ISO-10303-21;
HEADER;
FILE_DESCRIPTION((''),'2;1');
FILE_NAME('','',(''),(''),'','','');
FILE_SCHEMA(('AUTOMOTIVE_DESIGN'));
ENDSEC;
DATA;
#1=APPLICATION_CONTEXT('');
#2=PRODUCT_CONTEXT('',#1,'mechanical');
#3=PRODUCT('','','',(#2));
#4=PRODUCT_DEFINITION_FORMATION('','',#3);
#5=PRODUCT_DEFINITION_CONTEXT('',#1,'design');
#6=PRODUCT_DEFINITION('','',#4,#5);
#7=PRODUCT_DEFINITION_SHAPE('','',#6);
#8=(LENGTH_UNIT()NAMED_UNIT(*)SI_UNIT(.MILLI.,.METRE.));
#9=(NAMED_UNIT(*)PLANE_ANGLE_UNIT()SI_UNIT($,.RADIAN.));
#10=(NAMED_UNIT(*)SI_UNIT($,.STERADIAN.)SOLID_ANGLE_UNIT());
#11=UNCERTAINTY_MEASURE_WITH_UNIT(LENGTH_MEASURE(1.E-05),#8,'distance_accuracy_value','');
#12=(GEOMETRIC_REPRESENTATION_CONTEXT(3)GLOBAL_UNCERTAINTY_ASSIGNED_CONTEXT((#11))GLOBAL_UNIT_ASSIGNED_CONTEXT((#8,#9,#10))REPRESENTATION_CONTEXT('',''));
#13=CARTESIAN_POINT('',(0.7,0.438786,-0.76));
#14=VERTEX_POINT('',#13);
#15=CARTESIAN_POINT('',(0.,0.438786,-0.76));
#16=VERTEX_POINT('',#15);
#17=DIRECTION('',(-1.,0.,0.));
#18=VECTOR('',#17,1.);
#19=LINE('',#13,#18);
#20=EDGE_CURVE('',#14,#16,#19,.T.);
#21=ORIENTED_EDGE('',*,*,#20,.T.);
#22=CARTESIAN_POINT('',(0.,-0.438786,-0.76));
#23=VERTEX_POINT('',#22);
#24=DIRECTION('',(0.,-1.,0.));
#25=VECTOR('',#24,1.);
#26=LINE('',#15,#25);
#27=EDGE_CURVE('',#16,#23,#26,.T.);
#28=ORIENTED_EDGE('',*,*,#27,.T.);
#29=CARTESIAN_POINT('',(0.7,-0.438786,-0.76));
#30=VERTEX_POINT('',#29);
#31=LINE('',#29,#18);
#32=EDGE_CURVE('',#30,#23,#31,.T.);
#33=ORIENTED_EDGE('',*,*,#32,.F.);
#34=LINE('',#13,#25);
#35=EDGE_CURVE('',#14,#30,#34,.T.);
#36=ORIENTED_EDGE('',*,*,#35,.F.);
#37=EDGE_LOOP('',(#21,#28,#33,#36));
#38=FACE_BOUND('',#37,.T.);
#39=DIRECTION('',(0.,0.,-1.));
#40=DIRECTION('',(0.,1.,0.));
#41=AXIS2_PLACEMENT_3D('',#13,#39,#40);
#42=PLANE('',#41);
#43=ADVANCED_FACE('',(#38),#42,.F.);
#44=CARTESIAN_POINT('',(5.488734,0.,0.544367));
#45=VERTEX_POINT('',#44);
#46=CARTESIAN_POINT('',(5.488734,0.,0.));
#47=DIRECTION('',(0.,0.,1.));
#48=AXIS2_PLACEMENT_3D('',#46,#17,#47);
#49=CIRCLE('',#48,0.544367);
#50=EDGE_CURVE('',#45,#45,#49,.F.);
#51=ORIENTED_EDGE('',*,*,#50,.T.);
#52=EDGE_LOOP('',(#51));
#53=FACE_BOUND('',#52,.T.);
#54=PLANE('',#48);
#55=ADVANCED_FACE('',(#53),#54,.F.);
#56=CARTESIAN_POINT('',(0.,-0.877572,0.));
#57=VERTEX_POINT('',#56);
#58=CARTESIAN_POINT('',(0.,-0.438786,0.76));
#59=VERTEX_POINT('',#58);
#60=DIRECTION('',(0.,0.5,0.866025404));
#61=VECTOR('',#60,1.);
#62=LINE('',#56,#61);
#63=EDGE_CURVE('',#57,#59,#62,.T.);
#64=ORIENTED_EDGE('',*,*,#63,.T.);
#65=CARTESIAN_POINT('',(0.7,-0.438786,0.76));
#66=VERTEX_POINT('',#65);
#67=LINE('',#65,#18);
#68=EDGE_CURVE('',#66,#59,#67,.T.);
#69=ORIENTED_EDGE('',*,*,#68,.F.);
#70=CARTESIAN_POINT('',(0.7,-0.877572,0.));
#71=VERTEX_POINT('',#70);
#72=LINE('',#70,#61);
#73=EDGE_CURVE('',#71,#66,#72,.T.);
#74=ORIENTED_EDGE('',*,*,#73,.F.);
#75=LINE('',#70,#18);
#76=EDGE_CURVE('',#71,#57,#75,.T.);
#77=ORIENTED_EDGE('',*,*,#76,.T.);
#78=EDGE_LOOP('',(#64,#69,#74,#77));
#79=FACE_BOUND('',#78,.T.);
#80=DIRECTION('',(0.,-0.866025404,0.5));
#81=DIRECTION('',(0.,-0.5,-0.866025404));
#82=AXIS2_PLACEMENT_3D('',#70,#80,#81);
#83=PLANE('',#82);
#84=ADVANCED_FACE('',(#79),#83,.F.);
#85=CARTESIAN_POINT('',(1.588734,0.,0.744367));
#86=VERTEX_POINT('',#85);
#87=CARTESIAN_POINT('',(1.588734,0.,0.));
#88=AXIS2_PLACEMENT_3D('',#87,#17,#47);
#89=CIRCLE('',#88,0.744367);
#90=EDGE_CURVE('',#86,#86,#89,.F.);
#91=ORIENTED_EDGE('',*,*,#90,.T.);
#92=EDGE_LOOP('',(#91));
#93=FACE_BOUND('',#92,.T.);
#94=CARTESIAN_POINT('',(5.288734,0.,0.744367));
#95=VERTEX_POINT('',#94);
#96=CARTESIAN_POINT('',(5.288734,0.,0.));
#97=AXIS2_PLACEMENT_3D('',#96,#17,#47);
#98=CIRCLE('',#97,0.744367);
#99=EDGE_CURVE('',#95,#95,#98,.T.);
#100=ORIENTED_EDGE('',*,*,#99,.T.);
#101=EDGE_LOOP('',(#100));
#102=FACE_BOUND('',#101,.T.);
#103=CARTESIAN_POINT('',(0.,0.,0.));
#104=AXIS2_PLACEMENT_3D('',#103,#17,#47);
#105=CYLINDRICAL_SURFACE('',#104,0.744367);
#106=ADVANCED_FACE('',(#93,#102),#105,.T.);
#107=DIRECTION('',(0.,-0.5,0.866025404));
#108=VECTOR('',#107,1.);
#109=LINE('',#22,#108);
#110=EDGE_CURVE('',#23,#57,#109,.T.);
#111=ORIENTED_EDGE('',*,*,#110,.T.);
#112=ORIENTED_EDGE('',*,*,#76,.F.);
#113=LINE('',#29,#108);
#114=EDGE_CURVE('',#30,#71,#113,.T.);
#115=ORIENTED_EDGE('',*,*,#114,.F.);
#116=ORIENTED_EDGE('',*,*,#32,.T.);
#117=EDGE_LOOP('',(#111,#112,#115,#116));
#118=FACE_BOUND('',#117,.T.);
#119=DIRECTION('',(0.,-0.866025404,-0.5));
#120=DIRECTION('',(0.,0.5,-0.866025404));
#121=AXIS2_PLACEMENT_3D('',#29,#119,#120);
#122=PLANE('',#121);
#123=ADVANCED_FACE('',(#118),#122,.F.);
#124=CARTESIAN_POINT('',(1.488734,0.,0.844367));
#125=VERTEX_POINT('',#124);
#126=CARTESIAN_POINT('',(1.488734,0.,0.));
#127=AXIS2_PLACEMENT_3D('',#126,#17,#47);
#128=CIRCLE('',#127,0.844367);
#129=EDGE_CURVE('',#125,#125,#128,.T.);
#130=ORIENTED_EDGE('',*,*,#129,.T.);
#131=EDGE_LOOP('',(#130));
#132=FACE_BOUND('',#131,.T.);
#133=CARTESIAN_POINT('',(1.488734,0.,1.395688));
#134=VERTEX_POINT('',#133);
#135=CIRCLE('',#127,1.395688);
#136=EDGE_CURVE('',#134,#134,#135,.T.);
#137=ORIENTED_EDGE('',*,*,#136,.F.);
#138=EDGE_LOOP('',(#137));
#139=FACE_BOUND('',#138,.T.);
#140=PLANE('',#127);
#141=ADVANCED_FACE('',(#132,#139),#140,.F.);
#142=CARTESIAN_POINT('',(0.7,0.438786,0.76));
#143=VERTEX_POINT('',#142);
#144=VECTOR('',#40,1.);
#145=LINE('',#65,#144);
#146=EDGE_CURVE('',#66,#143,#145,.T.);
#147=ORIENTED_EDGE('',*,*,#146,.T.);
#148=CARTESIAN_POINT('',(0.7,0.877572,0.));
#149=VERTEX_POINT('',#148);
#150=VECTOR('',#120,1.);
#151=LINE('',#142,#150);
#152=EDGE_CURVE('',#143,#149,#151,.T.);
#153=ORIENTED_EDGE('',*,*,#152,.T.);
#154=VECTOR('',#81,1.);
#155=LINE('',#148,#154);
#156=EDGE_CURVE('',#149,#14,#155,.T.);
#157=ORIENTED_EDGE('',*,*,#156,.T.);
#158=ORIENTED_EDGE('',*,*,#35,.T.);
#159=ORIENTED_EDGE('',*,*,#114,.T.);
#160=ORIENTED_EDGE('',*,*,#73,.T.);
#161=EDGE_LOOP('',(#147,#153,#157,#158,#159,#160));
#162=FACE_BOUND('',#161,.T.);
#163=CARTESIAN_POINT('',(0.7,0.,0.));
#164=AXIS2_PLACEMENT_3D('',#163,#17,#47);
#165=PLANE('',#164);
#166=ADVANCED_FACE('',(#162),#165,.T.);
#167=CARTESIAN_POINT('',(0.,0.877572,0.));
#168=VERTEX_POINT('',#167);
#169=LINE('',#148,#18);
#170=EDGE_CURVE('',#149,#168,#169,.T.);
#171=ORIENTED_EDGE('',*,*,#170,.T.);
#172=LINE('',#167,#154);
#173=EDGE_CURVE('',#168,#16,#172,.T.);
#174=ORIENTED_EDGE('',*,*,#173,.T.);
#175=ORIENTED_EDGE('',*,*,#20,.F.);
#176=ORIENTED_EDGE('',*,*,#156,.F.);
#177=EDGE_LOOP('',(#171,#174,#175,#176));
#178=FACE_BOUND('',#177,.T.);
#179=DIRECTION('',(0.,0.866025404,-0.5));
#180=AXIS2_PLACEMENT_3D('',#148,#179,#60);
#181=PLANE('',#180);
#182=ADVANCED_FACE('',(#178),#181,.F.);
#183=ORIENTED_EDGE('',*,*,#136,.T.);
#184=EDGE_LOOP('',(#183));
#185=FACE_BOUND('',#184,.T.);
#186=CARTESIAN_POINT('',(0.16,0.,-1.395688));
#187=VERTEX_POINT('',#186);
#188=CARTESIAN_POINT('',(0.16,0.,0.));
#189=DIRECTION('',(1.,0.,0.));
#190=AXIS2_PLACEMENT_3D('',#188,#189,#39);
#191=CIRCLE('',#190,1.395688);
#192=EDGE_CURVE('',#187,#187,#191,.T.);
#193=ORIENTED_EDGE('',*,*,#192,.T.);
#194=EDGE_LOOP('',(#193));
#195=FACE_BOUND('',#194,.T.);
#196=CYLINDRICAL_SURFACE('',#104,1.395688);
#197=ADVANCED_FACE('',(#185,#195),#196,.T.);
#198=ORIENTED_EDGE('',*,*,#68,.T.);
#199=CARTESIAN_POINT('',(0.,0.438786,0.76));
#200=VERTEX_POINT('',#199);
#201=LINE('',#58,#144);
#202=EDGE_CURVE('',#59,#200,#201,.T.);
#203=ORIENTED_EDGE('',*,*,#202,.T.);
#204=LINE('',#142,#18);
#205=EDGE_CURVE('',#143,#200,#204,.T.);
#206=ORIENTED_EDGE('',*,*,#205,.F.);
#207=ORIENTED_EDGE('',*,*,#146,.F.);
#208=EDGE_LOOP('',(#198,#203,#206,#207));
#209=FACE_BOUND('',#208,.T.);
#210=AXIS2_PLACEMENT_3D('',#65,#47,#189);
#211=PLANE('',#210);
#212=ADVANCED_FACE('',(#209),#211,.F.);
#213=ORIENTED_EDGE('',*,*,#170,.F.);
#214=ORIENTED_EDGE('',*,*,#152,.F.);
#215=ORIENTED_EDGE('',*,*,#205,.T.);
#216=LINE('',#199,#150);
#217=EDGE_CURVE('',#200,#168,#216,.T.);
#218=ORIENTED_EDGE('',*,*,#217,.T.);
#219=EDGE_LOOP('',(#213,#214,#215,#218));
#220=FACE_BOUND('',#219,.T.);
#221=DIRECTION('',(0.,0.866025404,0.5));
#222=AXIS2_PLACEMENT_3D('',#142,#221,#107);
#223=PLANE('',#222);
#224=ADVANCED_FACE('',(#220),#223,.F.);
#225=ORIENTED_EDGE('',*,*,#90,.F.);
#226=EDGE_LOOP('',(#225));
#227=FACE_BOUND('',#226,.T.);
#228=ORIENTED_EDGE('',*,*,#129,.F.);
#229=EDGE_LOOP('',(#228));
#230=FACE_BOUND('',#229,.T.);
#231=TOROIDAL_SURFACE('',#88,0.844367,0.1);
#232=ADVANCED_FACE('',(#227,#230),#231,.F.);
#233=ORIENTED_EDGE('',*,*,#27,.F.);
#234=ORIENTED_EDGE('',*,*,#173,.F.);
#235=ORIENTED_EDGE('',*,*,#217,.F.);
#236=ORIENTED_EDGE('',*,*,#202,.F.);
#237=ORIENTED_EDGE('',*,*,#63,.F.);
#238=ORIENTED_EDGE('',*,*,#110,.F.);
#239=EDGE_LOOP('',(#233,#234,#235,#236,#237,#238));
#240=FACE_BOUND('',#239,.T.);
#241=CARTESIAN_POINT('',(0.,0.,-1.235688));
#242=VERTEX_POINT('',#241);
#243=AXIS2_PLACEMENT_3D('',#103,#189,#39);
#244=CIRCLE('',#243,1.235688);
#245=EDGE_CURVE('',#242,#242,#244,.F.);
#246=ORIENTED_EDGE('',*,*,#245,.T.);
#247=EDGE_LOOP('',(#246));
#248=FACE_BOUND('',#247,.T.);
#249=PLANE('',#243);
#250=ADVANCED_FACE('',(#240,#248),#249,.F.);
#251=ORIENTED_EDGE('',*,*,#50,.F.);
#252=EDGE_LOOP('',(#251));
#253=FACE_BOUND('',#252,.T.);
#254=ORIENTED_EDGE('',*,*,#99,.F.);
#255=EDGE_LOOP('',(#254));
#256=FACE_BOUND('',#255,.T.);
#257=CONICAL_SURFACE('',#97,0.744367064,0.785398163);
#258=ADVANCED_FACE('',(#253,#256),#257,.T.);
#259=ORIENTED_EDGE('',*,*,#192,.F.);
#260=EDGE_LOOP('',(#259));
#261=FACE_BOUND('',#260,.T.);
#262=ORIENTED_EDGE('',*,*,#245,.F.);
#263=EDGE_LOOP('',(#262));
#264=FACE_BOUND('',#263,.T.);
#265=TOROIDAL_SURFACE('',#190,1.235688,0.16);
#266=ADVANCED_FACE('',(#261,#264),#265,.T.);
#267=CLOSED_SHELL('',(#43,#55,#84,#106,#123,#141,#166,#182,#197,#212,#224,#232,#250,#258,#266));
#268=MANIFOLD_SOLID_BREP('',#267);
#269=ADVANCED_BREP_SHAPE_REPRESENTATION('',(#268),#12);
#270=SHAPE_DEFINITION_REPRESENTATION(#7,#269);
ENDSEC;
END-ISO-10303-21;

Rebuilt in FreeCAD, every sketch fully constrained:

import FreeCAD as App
import Part
import Sketcher

V = App.Vector
Q = App.Units.Quantity


def edges_at(feature, points):
    """Names of the edges that pass closest to the given points."""
    edges = feature.Shape.Edges
    near = lambda p: min(range(len(edges)), key=lambda i: edges[i].distToShape(Part.Vertex(*p))[0])
    return sorted({f"Edge{near(p) + 1}" for p in points})

doc = App.newDocument("Part")
params = doc.addObject("Spreadsheet::Sheet", "Params")
for row, (alias, value) in enumerate([
    ("sketch1_width", "4 mm"),
    ("revolution_angle", "360 deg"),
    ("fillet_radius", "0.1 mm"),
    ("fillet2_radius", "0.16 mm"),
    ("chamfer_size", "0.2 mm"),
    ("pocket1_length", "0.7 mm"),
], start=1):
    params.set(f"A{row}", alias)
    params.set(f"B{row}", "=" + value)
    params.setAlias(f"B{row}", alias)

body = doc.addObject("PartDesign::Body", "Body")

sketch1 = doc.addObject("Sketcher::SketchObject", "Sketch")
body.addObject(sketch1)
sketch1.AttachmentSupport = (doc.XY_Plane, [""])
sketch1.MapMode = "FlatFace"
sketch1.addGeometry(Part.LineSegment(V(0, 1.4, 0), V(0, 0, 0)), False)
sketch1.addGeometry(Part.LineSegment(V(0, 0, 0), V(5.5, 0, 0)), False)
sketch1.addGeometry(Part.LineSegment(V(5.5, 0, 0), V(5.5, 0.7, 0)), False)
sketch1.addGeometry(Part.LineSegment(V(5.5, 0.7, 0), V(1.5, 0.7, 0)), False)
sketch1.addGeometry(Part.LineSegment(V(1.5, 0.7, 0), V(1.5, 1.4, 0)), False)
sketch1.addGeometry(Part.LineSegment(V(1.5, 1.4, 0), V(0, 1.4, 0)), False)
sketch1.addConstraint(Sketcher.Constraint("Coincident", 0, 2, 1, 1))
sketch1.addConstraint(Sketcher.Constraint("Coincident", 1, 2, 2, 1))
sketch1.addConstraint(Sketcher.Constraint("Coincident", 2, 2, 3, 1))
sketch1.addConstraint(Sketcher.Constraint("Coincident", 3, 2, 4, 1))
sketch1.addConstraint(Sketcher.Constraint("Coincident", 4, 2, 5, 1))
sketch1.addConstraint(Sketcher.Constraint("Coincident", 5, 2, 0, 1))
sketch1.addConstraint(Sketcher.Constraint("Vertical", 0))
sketch1.addConstraint(Sketcher.Constraint("Horizontal", 1))
sketch1.addConstraint(Sketcher.Constraint("Vertical", 2))
sketch1.addConstraint(Sketcher.Constraint("Horizontal", 3))
sketch1.addConstraint(Sketcher.Constraint("Vertical", 4))
sketch1.addConstraint(Sketcher.Constraint("Horizontal", 5))
sketch1.addConstraint(Sketcher.Constraint("Coincident", 0, 2, -1, 1))
sketch1.addConstraint(Sketcher.Constraint("DistanceX", 3, 2, 3, 1, Q("4 mm")))
sketch1.addConstraint(Sketcher.Constraint("DistanceY", 0, 2, 0, 1, Q("1.395688 mm")))
sketch1.addConstraint(Sketcher.Constraint("DistanceY", 4, 1, 4, 2, Q("0.651321 mm")))
sketch1.addConstraint(Sketcher.Constraint("DistanceX", 1, 1, 1, 2, Q("5.488734 mm")))
sketch1.setExpression("Constraints[13]", "Params.sketch1_width")
revolution = doc.addObject("PartDesign::Revolution", "Revolution")
body.addObject(revolution)
revolution.Profile = sketch1
revolution.ReferenceAxis = (sketch1, ["H_Axis"])
revolution.setExpression("Angle", "Params.revolution_angle")
doc.recompute()

fillet = doc.addObject("PartDesign::Fillet", "Fillet")
body.addObject(fillet)
fillet.Base = (revolution, edges_at(revolution, [(1.489, 0, -0.744)]))
fillet.setExpression("Radius", "Params.fillet_radius")
doc.recompute()

fillet2 = doc.addObject("PartDesign::Fillet", "Fillet001")
body.addObject(fillet2)
fillet2.Base = (fillet, edges_at(fillet, [(0, 0, -1.396)]))
fillet2.setExpression("Radius", "Params.fillet2_radius")
doc.recompute()

chamfer = doc.addObject("PartDesign::Chamfer", "Chamfer")
body.addObject(chamfer)
chamfer.Base = (fillet2, edges_at(fillet2, [(5.489, 0, -0.744)]))
chamfer.setExpression("Size", "Params.chamfer_size")

sketch2 = doc.addObject("Sketcher::SketchObject", "Sketch001")
body.addObject(sketch2)
sketch2.AttachmentSupport = (doc.YZ_Plane, [""])
sketch2.MapMode = "FlatFace"
sketch2.addGeometry(Part.LineSegment(V(0.9, 0, 0), V(0.4, -0.8, 0)), False)
sketch2.addGeometry(Part.LineSegment(V(0.4, -0.8, 0), V(-0.4, -0.8, 0)), False)
sketch2.addGeometry(Part.LineSegment(V(-0.4, -0.8, 0), V(-0.9, 0, 0)), False)
sketch2.addGeometry(Part.LineSegment(V(-0.9, 0, 0), V(-0.4, 0.8, 0)), False)
sketch2.addGeometry(Part.LineSegment(V(-0.4, 0.8, 0), V(0.4, 0.8, 0)), False)
sketch2.addGeometry(Part.LineSegment(V(0.4, 0.8, 0), V(0.9, 0, 0)), False)
sketch2.addConstraint(Sketcher.Constraint("Coincident", 0, 2, 1, 1))
sketch2.addConstraint(Sketcher.Constraint("Coincident", 1, 2, 2, 1))
sketch2.addConstraint(Sketcher.Constraint("Coincident", 2, 2, 3, 1))
sketch2.addConstraint(Sketcher.Constraint("Coincident", 3, 2, 4, 1))
sketch2.addConstraint(Sketcher.Constraint("Coincident", 4, 2, 5, 1))
sketch2.addConstraint(Sketcher.Constraint("Coincident", 5, 2, 0, 1))
sketch2.addConstraint(Sketcher.Constraint("Horizontal", 1))
sketch2.addConstraint(Sketcher.Constraint("Horizontal", 4))
sketch2.addConstraint(Sketcher.Constraint("Symmetric", 0, 2, 3, 2, -1, 1))
sketch2.addConstraint(Sketcher.Constraint("Symmetric", 2, 2, 5, 2, -1, 1))
sketch2.addConstraint(Sketcher.Constraint("PointOnObject", 2, 2, -1))
sketch2.addConstraint(Sketcher.Constraint("Parallel", 2, 5))
sketch2.addConstraint(Sketcher.Constraint("Vertical", 1, 2, 3, 2))
sketch2.addConstraint(Sketcher.Constraint("Angle", 0, Q("-120 deg")))
sketch2.addConstraint(Sketcher.Constraint("DistanceY", 0, 2, -1, 1, Q("0.76 mm")))
sketch2.addConstraint(Sketcher.Constraint("DistanceX", 1, 2, 1, 1, Q("0.877572 mm")))
pocket1 = doc.addObject("PartDesign::Pocket", "Pocket")
body.addObject(pocket1)
pocket1.Profile = sketch2
pocket1.setExpression("Length", "Params.pocket1_length")
pocket1.Reversed = True

doc.recompute()
